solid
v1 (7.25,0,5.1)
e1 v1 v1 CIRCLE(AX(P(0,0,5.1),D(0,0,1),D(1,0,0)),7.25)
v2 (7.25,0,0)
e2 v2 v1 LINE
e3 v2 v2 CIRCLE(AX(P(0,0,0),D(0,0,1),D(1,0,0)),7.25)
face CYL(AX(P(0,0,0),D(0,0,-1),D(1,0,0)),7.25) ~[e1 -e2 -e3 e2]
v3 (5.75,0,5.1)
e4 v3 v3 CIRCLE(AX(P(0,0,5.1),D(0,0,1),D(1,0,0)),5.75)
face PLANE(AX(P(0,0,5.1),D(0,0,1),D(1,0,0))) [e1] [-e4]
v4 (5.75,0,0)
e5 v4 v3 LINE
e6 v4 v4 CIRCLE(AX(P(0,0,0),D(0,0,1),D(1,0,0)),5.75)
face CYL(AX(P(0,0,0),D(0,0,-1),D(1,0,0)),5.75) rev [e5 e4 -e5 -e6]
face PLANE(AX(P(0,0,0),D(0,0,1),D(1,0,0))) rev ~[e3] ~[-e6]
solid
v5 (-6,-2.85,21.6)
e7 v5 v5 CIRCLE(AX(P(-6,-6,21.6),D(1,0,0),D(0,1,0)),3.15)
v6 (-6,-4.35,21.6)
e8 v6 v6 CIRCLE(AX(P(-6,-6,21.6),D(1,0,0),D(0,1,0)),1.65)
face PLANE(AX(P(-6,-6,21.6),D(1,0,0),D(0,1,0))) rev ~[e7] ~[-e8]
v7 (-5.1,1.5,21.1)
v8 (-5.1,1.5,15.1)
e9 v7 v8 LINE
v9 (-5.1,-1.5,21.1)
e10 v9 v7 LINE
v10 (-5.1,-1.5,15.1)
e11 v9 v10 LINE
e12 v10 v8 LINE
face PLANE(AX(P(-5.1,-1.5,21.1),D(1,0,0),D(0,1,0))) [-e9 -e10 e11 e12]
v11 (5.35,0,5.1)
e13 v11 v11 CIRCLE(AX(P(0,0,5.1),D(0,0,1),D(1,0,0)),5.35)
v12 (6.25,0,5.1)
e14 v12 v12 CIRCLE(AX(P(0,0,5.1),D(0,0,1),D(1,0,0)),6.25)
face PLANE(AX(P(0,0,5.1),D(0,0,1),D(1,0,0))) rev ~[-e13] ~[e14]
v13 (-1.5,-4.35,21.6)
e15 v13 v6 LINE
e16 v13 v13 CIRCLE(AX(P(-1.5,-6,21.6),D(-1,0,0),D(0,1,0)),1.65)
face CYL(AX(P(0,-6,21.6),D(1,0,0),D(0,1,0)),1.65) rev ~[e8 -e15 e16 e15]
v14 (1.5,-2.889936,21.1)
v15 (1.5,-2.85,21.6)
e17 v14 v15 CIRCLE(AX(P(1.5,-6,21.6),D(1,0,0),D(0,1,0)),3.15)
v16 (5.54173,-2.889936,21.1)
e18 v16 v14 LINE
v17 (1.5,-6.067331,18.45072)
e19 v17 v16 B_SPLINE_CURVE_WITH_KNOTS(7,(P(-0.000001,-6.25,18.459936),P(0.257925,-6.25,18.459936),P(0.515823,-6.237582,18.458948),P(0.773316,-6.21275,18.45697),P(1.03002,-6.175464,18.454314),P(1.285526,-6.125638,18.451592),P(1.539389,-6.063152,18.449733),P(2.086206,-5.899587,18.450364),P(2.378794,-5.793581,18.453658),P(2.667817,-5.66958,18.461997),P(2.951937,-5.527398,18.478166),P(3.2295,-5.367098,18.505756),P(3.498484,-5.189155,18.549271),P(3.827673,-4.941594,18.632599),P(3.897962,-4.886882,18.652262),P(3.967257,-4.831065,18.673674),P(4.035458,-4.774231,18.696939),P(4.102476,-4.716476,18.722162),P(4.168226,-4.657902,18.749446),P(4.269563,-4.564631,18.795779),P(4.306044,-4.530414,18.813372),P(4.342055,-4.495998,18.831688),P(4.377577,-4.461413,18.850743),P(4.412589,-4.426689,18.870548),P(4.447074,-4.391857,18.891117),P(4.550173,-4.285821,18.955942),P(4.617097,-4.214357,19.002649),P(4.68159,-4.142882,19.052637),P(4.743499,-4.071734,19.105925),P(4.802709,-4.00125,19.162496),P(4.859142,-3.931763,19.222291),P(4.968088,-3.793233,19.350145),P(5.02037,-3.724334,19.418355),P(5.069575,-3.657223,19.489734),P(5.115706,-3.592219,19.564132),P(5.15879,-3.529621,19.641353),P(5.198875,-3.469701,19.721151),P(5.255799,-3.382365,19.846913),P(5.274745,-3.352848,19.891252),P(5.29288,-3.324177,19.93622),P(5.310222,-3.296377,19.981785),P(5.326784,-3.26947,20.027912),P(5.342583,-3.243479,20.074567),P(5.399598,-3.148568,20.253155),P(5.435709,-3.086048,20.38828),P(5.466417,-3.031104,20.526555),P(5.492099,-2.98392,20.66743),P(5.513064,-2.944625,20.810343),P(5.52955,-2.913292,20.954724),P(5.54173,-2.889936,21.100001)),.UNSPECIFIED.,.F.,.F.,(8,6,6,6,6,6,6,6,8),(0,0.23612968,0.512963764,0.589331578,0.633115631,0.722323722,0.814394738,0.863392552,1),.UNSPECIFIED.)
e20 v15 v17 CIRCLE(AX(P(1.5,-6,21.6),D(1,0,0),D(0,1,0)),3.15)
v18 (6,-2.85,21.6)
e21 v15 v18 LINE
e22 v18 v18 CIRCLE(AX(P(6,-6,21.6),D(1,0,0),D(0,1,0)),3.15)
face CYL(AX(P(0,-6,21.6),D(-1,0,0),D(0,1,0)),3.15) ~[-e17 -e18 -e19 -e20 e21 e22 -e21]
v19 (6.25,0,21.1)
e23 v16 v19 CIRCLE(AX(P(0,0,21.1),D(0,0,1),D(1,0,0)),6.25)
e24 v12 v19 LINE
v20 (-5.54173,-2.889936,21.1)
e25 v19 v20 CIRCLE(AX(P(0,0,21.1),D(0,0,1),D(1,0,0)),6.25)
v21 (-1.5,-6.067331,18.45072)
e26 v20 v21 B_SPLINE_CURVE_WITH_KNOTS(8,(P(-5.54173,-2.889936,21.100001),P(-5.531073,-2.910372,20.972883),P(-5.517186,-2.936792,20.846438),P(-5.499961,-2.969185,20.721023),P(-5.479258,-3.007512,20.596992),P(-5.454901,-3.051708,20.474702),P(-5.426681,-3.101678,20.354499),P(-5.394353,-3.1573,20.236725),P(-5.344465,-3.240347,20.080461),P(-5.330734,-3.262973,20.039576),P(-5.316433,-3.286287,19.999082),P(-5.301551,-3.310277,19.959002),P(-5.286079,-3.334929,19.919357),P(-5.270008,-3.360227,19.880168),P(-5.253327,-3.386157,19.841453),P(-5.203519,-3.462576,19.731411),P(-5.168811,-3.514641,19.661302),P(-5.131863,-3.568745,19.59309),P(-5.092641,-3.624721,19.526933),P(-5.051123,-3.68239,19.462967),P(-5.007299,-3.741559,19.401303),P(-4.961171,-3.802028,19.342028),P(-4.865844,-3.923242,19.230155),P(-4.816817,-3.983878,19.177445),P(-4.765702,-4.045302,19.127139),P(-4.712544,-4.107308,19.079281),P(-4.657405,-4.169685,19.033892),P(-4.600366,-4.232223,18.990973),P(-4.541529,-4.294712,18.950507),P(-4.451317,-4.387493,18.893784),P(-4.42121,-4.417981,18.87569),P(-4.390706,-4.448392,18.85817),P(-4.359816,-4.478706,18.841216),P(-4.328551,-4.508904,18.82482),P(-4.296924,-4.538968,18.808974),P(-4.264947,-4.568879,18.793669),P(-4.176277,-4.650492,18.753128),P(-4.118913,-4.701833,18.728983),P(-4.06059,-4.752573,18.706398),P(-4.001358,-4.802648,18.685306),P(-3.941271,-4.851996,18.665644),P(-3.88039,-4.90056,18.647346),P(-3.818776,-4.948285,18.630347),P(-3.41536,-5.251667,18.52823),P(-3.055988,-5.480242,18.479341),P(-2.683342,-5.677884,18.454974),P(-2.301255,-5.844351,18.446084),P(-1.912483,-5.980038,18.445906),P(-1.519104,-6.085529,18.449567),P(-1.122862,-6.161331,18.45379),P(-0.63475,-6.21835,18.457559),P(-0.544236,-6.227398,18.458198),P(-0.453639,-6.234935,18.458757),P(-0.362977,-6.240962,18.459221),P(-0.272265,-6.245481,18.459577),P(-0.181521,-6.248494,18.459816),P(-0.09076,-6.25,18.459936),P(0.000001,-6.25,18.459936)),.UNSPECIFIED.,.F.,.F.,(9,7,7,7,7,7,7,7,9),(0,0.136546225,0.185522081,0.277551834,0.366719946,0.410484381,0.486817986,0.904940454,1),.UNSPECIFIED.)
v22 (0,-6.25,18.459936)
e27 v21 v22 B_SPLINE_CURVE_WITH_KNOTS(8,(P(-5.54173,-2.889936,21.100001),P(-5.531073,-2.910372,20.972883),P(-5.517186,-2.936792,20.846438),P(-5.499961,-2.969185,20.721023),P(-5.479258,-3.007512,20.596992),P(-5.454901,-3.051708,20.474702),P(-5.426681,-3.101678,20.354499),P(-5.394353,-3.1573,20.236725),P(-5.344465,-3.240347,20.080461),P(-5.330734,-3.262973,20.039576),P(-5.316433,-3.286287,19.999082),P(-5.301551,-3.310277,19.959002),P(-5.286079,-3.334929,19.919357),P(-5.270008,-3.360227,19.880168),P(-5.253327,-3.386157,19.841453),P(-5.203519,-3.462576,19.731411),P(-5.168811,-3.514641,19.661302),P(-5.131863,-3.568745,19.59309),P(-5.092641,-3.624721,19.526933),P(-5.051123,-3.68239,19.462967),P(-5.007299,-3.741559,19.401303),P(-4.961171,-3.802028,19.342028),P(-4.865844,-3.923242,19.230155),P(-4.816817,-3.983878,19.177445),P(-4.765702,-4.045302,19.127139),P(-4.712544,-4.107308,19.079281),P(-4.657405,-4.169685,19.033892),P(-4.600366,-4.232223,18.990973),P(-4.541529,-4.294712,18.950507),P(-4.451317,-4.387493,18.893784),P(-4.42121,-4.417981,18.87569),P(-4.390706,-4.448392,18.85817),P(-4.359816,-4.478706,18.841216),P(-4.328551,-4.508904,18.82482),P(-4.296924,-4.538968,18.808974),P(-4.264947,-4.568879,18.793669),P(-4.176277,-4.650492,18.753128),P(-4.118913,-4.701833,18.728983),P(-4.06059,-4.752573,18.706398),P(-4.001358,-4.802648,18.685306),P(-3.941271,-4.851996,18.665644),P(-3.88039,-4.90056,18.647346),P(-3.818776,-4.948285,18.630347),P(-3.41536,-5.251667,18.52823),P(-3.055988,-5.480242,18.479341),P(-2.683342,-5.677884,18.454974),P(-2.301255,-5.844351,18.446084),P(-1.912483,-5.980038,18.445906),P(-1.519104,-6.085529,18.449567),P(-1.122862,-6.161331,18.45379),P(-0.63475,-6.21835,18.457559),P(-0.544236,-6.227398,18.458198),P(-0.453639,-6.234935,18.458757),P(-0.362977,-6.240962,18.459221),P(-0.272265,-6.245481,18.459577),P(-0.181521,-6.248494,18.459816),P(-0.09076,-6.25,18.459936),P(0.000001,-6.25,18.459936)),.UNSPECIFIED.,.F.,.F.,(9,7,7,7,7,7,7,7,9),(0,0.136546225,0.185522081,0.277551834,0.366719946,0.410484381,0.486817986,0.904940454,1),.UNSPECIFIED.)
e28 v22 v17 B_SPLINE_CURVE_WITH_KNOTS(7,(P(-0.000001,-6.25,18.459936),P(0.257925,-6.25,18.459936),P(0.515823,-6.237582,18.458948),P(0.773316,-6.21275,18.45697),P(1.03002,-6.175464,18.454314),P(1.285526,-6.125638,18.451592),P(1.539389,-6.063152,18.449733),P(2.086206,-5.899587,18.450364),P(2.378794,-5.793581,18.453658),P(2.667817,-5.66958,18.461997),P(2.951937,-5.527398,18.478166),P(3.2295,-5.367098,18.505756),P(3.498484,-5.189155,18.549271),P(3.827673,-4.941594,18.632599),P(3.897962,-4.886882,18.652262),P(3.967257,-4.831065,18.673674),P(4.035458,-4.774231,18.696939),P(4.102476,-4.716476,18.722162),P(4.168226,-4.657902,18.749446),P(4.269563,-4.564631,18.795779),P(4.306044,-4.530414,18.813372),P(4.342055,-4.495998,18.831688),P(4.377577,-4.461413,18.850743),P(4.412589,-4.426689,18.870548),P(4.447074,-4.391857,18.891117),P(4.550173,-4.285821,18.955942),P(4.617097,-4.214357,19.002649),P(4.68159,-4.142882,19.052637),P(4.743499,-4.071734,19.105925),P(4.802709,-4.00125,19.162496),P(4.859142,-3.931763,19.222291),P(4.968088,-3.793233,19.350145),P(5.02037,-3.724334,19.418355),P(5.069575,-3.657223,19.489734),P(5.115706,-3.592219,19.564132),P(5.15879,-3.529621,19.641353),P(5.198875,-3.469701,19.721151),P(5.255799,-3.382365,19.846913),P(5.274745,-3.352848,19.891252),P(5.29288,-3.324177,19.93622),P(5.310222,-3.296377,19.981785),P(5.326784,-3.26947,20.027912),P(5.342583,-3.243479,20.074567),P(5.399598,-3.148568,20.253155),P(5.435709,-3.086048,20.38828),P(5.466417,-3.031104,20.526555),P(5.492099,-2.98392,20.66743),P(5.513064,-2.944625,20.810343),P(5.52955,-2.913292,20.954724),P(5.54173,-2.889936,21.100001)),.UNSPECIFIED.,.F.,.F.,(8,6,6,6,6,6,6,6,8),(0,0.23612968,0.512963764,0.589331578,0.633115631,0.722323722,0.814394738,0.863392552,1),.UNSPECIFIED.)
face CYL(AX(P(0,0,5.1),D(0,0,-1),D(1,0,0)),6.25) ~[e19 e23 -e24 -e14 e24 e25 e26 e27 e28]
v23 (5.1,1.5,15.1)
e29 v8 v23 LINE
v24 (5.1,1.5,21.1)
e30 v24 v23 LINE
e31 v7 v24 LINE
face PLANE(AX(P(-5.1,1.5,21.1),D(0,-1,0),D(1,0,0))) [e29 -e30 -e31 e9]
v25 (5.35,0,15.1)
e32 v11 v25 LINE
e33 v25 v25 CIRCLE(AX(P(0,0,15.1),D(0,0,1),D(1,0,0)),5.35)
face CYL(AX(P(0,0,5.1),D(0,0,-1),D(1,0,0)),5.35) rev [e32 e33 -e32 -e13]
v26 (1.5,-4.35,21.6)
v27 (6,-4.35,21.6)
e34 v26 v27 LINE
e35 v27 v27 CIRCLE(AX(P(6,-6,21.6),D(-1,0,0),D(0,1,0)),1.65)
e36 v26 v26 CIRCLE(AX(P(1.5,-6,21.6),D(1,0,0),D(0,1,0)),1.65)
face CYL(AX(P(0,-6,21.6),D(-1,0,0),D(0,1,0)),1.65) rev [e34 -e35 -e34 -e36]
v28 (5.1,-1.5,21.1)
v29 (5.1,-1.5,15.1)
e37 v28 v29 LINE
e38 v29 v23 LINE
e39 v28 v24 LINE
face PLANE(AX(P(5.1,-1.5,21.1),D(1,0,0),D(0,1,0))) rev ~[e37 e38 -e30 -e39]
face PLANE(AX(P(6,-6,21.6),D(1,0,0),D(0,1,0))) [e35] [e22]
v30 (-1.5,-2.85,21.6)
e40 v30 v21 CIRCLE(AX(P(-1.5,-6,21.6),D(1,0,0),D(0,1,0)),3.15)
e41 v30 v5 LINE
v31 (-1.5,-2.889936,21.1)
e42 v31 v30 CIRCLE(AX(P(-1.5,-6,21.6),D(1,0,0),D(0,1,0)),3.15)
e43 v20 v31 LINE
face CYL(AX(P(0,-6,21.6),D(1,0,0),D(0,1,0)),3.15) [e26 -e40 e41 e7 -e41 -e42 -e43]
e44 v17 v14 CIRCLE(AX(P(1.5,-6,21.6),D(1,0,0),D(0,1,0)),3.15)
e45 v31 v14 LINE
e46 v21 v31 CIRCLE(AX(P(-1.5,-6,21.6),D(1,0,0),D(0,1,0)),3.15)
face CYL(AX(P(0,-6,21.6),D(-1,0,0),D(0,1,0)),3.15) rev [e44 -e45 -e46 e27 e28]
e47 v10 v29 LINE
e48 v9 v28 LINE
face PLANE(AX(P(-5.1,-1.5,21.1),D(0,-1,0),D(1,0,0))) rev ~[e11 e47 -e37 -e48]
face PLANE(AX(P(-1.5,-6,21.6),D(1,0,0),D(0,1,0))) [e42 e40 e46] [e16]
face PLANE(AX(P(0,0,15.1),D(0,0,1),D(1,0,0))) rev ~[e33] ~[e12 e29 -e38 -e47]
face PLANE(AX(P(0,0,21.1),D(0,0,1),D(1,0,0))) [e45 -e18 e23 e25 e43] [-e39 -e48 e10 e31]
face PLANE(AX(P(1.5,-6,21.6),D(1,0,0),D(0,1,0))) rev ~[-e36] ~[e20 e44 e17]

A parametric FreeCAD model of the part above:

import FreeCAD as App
import Part
import Sketcher

V = App.Vector
Q = App.Units.Quantity

doc = App.newDocument("Part")
body = doc.addObject("PartDesign::Body", "Body")

# Sketch on XY plane
sketch1 = body.newObject("Sketcher::SketchObject", "Sketch")
sketch1.AttachmentSupport = (doc.getObject("XY_Plane"), [""])
sketch1.MapMode = "FlatFace"
sketch1.addGeometry([
    Part.Circle(V(0, 0, 0), V(0, 0, 1), 7),
    Part.Circle(V(0, 0, 0), V(0, 0, 1), 6),
], False)
sketch1.addConstraint([
    Sketcher.Constraint("Coincident", 0, 3, -1, 1),
    Sketcher.Constraint("Coincident", 1, 3, -1, 1),
    Sketcher.Constraint("Diameter", 0, Q("14.5 mm")),
    Sketcher.Constraint("Diameter", 1, Q("11.5 mm")),
])
pad1 = body.newObject("PartDesign::Pad", "Pad")
pad1.Profile = sketch1
pad1.Length = 5.1
body2 = doc.addObject("PartDesign::Body", "Body001")

# Sketch on XY plane
sketch2 = body2.newObject("Sketcher::SketchObject", "Sketch001")
sketch2.AttachmentSupport = (doc.getObject("XY_Plane001"), [""])
sketch2.MapMode = "FlatFace"
sketch2.AttachmentOffset = App.Placement(V(0, 0, 5.1), App.Rotation())
sketch2.addGeometry([
    Part.Circle(V(0, 0, 0), V(0, 0, 1), 6),
    Part.Circle(V(0, 0, 0), V(0, 0, 1), 5),
], False)
sketch2.addConstraint([
    Sketcher.Constraint("Coincident", 0, 3, -1, 1),
    Sketcher.Constraint("Coincident", 1, 3, -1, 1),
    Sketcher.Constraint("Diameter", 0, Q("12.5 mm")),
    Sketcher.Constraint("Diameter", 1, Q("10.7 mm")),
])
pad2 = body2.newObject("PartDesign::Pad", "Pad001")
pad2.Profile = sketch2
pad2.Length = 16

# Sketch on XY plane
sketch3 = body2.newObject("Sketcher::SketchObject", "Sketch002")
sketch3.AttachmentSupport = (doc.getObject("XY_Plane001"), [""])
sketch3.MapMode = "FlatFace"
sketch3.AttachmentOffset = App.Placement(V(0, 0, 21.1), App.Rotation())
sketch3.addGeometry([
    Part.Circle(V(0, 0, 0), V(0, 0, 1), 5.3),
    Part.Circle(V(0, 0, 0), V(0, 0, 1), 0.6),
], False)
sketch3.addConstraint([
    Sketcher.Constraint("Coincident", 0, 3, -1, 1),
    Sketcher.Constraint("Coincident", 1, 3, -1, 1),
    Sketcher.Constraint("Diameter", 0, Q("10.7 mm")),
    Sketcher.Constraint("Diameter", 1, Q("1.2 mm")),
])
pad3 = body2.newObject("PartDesign::Pad", "Pad002")
pad3.Profile = sketch3
pad3.Length = 6
pad3.Reversed = True

# Sketch on XY plane
sketch4 = body2.newObject("Sketcher::SketchObject", "Sketch003")
sketch4.AttachmentSupport = (doc.getObject("XY_Plane001"), [""])
sketch4.MapMode = "FlatFace"
sketch4.AttachmentOffset = App.Placement(V(0, 0, 21.1), App.Rotation())
sketch4.addGeometry([
    Part.LineSegment(V(-5.1, 1.5, 0), V(-5.1, -1.5, 0)),  # 0
    Part.LineSegment(V(-5.1, -1.5, 0), V(5.1, -1.5, 0)),  # 1
    Part.LineSegment(V(5.1, -1.5, 0), V(5.1, 1.5, 0)),  # 2
    Part.LineSegment(V(5.1, 1.5, 0), V(-5.1, 1.5, 0)),  # 3
    Part.Circle(V(0, 0, 0), V(0, 0, 1), 0.6),  # 4
], False)
sketch4.addConstraint([
    Sketcher.Constraint("Coincident", 0, 2, 1, 1),
    Sketcher.Constraint("Coincident", 1, 2, 2, 1),
    Sketcher.Constraint("Coincident", 2, 2, 3, 1),
    Sketcher.Constraint("Coincident", 3, 2, 0, 1),
    Sketcher.Constraint("Vertical", 0),
    Sketcher.Constraint("Horizontal", 1),
    Sketcher.Constraint("Vertical", 2),
    Sketcher.Constraint("Horizontal", 3),
    Sketcher.Constraint("Coincident", 4, 3, -1, 1),
    Sketcher.Constraint("Symmetric", 0, 2, 2, 2, -1, 1),
    Sketcher.Constraint("Diameter", 4, Q("1.2 mm")),
    Sketcher.Constraint("DistanceY", 0, 2, 0, 1, Q("3 mm")),
    Sketcher.Constraint("DistanceX", 1, 1, 1, 2, Q("10.2 mm")),
])
pocket1 = body2.newObject("PartDesign::Pocket", "Pocket")
pocket1.Profile = sketch4
pocket1.Length = 10

# Sketch on YZ plane
sketch5 = body2.newObject("Sketcher::SketchObject", "Sketch004")
sketch5.AttachmentSupport = (doc.getObject("YZ_Plane001"), [""])
sketch5.MapMode = "FlatFace"
sketch5.addGeometry([
    Part.Circle(V(-6, 21.6, 0), V(0, 0, 1), 3.1),
    Part.Circle(V(-6, 21.6, 0), V(0, 0, 1), 1.6),
], False)
sketch5.addConstraint([
    Sketcher.Constraint("Coincident", 1, 3, 0, 3),
    Sketcher.Constraint("Diameter", 0, Q("6.3 mm")),
    Sketcher.Constraint("Diameter", 1, Q("3.3 mm")),
    Sketcher.Constraint("DistanceX", 0, 3, -1, 1, Q("6 mm")),
    Sketcher.Constraint("DistanceY", -1, 1, 0, 3, Q("21.6 mm")),
])
pad4 = body2.newObject("PartDesign::Pad", "Pad003")
pad4.Profile = sketch5
pad4.Type = "TwoLengths"
pad4.Length = 6
pad4.Length2 = 6

# Sketch on YZ plane
sketch6 = body2.newObject("Sketcher::SketchObject", "Sketch005")
sketch6.AttachmentSupport = (doc.getObject("YZ_Plane001"), [""])
sketch6.MapMode = "FlatFace"
sketch6.addGeometry([
    Part.Circle(V(-6, 21.6, 0), V(0, 0, 1), 3.1),
    Part.Circle(V(-6, 21.6, 0), V(0, 0, 1), 1.6),
], False)
sketch6.addConstraint([
    Sketcher.Constraint("Coincident", 1, 3, 0, 3),
    Sketcher.Constraint("Diameter", 0, Q("6.3 mm")),
    Sketcher.Constraint("Diameter", 1, Q("3.3 mm")),
    Sketcher.Constraint("DistanceX", 0, 3, -1, 1, Q("6 mm")),
    Sketcher.Constraint("DistanceY", -1, 1, 0, 3, Q("21.6 mm")),
])
pocket2 = body2.newObject("PartDesign::Pocket", "Pocket001")
pocket2.Profile = sketch6
pocket2.Type = "TwoLengths"
pocket2.Length = 1.5
pocket2.Length2 = 1.5
pocket2.Reversed = True

# Sketch on YZ plane
sketch7 = body2.newObject("Sketcher::SketchObject", "Sketch006")
sketch7.AttachmentSupport = (doc.getObject("YZ_Plane001"), [""])
sketch7.MapMode = "FlatFace"
sketch7.AttachmentOffset = App.Placement(V(0, 0, -6), App.Rotation())
sketch7.addGeometry(Part.Circle(V(-6, 21.6, 0), V(0, 0, 1), 1.6), False)
sketch7.addConstraint([
    Sketcher.Constraint("Diameter", 0, Q("3.3 mm")),
    Sketcher.Constraint("DistanceX", 0, 3, -1, 1, Q("6 mm")),
    Sketcher.Constraint("DistanceY", -1, 1, 0, 3, Q("21.6 mm")),
])
pocket3 = body2.newObject("PartDesign::Pocket", "Pocket002")
pocket3.Profile = sketch7
pocket3.Length = 25
pocket3.Reversed = True

doc.recompute()
